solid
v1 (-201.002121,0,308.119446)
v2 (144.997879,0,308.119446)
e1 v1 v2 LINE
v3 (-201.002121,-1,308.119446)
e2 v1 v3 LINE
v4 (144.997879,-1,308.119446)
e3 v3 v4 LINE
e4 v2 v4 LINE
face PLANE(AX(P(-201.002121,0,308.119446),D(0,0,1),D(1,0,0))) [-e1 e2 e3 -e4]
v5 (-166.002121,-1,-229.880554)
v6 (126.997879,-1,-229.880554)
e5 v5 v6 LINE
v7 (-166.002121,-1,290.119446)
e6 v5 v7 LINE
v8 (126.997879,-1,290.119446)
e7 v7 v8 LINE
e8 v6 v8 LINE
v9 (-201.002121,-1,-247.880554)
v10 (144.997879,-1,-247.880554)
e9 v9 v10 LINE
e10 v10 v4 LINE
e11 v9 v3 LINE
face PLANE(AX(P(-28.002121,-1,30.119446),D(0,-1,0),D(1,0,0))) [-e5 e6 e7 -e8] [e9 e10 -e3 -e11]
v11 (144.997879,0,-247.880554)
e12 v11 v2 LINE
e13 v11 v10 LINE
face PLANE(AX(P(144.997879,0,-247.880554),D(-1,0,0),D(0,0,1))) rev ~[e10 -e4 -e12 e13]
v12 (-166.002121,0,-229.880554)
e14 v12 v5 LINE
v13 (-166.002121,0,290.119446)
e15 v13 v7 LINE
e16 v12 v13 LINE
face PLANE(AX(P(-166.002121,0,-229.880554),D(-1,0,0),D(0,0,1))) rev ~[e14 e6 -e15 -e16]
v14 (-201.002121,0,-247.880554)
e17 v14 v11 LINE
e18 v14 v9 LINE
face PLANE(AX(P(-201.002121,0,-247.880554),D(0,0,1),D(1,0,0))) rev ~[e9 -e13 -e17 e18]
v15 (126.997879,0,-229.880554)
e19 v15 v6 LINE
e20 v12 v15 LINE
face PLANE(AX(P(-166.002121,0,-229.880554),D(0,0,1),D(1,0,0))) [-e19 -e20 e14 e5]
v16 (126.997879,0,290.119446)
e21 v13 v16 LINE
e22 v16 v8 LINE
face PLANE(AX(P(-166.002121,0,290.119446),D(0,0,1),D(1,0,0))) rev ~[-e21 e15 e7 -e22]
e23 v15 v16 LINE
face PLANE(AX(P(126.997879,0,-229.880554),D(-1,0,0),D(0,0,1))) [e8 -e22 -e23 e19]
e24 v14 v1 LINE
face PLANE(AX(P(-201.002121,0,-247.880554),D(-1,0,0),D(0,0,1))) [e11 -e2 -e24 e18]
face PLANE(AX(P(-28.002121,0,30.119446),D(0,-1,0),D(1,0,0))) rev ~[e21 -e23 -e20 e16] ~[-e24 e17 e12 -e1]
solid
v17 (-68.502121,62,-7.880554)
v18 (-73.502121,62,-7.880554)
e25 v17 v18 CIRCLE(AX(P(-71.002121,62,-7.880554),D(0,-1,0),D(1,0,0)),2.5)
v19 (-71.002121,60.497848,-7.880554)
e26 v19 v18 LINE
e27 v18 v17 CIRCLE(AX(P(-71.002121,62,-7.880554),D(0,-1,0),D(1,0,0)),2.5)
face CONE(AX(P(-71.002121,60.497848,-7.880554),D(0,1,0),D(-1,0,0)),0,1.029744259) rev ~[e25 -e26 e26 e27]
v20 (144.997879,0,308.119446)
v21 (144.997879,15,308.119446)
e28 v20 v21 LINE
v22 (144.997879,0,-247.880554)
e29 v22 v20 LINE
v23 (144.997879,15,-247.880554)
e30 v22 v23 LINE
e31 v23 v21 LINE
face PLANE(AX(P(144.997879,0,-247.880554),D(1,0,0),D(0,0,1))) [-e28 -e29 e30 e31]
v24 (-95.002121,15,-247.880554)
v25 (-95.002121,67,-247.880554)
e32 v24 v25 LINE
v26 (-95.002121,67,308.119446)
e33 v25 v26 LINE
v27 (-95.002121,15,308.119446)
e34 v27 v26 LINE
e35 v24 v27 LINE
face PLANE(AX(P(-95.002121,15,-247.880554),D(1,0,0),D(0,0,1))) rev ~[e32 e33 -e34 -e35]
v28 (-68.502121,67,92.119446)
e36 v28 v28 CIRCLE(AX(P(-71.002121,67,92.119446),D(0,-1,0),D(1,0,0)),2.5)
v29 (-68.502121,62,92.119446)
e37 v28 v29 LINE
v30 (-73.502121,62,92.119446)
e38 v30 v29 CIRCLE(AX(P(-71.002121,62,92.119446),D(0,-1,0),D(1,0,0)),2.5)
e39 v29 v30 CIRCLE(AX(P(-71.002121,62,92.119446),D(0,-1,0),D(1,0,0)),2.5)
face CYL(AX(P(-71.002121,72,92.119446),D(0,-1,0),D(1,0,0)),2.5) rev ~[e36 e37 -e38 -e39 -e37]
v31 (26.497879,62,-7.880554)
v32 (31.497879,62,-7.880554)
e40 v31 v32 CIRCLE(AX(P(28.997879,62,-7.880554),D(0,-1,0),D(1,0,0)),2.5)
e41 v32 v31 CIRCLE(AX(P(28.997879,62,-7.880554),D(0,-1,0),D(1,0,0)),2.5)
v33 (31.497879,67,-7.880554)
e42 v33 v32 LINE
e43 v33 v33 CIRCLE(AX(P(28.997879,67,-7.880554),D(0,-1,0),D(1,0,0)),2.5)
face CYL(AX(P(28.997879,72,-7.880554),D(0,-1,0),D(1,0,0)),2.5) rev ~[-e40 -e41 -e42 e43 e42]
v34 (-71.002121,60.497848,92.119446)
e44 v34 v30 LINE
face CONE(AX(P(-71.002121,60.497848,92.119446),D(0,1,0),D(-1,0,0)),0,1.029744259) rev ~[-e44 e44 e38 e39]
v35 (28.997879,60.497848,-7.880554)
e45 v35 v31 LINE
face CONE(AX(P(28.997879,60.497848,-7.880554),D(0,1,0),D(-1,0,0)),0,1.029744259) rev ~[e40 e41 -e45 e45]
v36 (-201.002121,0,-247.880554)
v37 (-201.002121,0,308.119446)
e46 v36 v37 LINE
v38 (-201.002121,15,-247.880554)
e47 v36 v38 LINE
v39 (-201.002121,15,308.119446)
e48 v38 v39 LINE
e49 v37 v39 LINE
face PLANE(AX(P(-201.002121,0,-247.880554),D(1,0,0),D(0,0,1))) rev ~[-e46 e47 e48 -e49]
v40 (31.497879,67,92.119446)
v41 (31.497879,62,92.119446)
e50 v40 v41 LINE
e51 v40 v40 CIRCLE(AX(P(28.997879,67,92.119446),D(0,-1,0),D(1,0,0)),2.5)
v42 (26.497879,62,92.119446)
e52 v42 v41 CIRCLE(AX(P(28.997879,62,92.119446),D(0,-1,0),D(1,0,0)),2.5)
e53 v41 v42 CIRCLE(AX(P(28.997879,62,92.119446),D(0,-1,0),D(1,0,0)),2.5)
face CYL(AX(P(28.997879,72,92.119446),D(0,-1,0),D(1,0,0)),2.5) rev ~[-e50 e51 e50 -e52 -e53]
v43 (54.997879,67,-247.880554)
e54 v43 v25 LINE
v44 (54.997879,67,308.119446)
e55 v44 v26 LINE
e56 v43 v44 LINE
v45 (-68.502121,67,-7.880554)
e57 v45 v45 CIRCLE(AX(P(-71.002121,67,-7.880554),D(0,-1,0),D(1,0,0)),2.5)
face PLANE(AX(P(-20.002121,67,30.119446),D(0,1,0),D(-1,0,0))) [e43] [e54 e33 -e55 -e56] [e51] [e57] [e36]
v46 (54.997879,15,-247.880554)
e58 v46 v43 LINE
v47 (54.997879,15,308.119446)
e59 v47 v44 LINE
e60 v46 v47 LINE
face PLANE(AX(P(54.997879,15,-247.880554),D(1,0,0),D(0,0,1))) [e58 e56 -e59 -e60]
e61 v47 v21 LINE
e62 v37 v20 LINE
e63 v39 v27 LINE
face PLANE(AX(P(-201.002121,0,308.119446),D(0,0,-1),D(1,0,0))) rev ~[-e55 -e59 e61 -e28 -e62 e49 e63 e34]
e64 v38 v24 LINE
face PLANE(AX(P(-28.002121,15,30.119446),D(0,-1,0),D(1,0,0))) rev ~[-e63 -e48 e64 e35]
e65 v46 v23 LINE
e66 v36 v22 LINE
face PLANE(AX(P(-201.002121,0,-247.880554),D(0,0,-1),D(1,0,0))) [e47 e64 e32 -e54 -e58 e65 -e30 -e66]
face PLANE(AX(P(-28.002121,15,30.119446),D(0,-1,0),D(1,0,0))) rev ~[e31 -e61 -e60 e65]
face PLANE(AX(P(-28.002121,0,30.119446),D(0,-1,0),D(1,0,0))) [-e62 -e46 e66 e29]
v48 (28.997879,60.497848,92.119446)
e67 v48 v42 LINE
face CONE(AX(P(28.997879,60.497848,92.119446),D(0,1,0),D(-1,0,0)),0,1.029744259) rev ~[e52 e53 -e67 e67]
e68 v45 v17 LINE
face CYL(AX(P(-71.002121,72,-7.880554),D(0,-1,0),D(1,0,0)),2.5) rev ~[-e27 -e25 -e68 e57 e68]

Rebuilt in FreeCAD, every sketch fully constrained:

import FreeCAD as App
import Part
import Sketcher

V = App.Vector
Q = App.Units.Quantity

doc = App.newDocument("Part")
body = doc.addObject("PartDesign::Body", "Body")

# Sketch on XZ plane
sketch1 = doc.addObject("Sketcher::SketchObject", "Sketch")
body.addObject(sketch1)
sketch1.AttachmentSupport = (doc.XZ_Plane, [""])
sketch1.MapMode = "FlatFace"
sketch1.addGeometry([
    Part.LineSegment(V(-201.002121, 308.119446, 0), V(-201.002121, -247.880554, 0)),
    Part.LineSegment(V(-201.002121, -247.880554, 0), V(144.997879, -247.880554, 0)),
    Part.LineSegment(V(144.997879, -247.880554, 0), V(144.997879, 308.119446, 0)),
    Part.LineSegment(V(144.997879, 308.119446, 0), V(-201.002121, 308.119446, 0)),
], False)
sketch1.addConstraint([
    Sketcher.Constraint("Coincident", 0, 2, 1, 1),
    Sketcher.Constraint("Coincident", 1, 2, 2, 1),
    Sketcher.Constraint("Coincident", 2, 2, 3, 1),
    Sketcher.Constraint("Coincident", 3, 2, 0, 1),
    Sketcher.Constraint("Vertical", 0),
    Sketcher.Constraint("Horizontal", 1),
    Sketcher.Constraint("Vertical", 2),
    Sketcher.Constraint("Horizontal", 3),
    Sketcher.Constraint("DistanceX", 1, 1, 1, 2, Q("346 mm")),
    Sketcher.Constraint("DistanceY", 0, 2, 0, 1, Q("556 mm")),
    Sketcher.Constraint("DistanceX", 0, 2, -1, 1, Q("201.002121 mm")),
    Sketcher.Constraint("DistanceY", 0, 2, -1, 1, Q("247.880554 mm")),
])
pad1 = doc.addObject("PartDesign::Pad", "Pad")
body.addObject(pad1)
pad1.Profile = sketch1
pad1.Length = 15
pad1.Reversed = True

# Sketch on XZ plane
sketch2 = doc.addObject("Sketcher::SketchObject", "Sketch001")
body.addObject(sketch2)
sketch2.AttachmentSupport = (doc.XZ_Plane, [""])
sketch2.MapMode = "FlatFace"
sketch2.AttachmentOffset = App.Placement(V(0, 0, -15), App.Rotation())
sketch2.addGeometry([
    Part.LineSegment(V(54.997879, 308.119446, 0), V(54.997879, -247.880554, 0)),
    Part.LineSegment(V(54.997879, -247.880554, 0), V(-95.002121, -247.880554, 0)),
    Part.LineSegment(V(-95.002121, -247.880554, 0), V(-95.002121, 308.119446, 0)),
    Part.LineSegment(V(-95.002121, 308.119446, 0), V(54.997879, 308.119446, 0)),
], False)
sketch2.addConstraint([
    Sketcher.Constraint("Coincident", 0, 2, 1, 1),
    Sketcher.Constraint("Coincident", 1, 2, 2, 1),
    Sketcher.Constraint("Coincident", 2, 2, 3, 1),
    Sketcher.Constraint("Coincident", 3, 2, 0, 1),
    Sketcher.Constraint("Vertical", 0),
    Sketcher.Constraint("Horizontal", 1),
    Sketcher.Constraint("Vertical", 2),
    Sketcher.Constraint("Horizontal", 3),
    Sketcher.Constraint("DistanceX", 1, 2, 1, 1, Q("150 mm")),
    Sketcher.Constraint("DistanceY", 0, 2, 0, 1, Q("556 mm")),
    Sketcher.Constraint("DistanceX", -1, 1, 0, 2, Q("54.997879 mm")),
    Sketcher.Constraint("DistanceY", 0, 2, -1, 1, Q("247.880554 mm")),
])
pad2 = doc.addObject("PartDesign::Pad", "Pad001")
body.addObject(pad2)
pad2.Profile = sketch2
pad2.Length = 52
pad2.Reversed = True

# Sketch on XZ plane
sketch3 = doc.addObject("Sketcher::SketchObject", "Sketch002")
body.addObject(sketch3)
sketch3.AttachmentSupport = (doc.XZ_Plane, [""])
sketch3.MapMode = "FlatFace"
sketch3.AttachmentOffset = App.Placement(V(0, 0, -67), App.Rotation())
sketch3.addGeometry([
    Part.Circle(V(28.997879, 92.119446, 0), V(0, 0, 1), 2.5),
    Part.Circle(V(-71.002121, 92.119446, 0), V(0, 0, 1), 2.5),
    Part.Circle(V(-71.002121, -7.880554, 0), V(0, 0, 1), 2.5),
    Part.Circle(V(28.997879, -7.880554, 0), V(0, 0, 1), 2.5),
], False)
sketch3.addConstraint([
    Sketcher.Constraint("Equal", 0, 1),
    Sketcher.Constraint("Equal", 1, 2),
    Sketcher.Constraint("Equal", 2, 3),
    Sketcher.Constraint("Horizontal", 0, 3, 1, 3),
    Sketcher.Constraint("Horizontal", 2, 3, 3, 3),
    Sketcher.Constraint("Vertical", 1, 3, 2, 3),
    Sketcher.Constraint("Vertical", 0, 3, 3, 3),
    Sketcher.Constraint("Diameter", 0, Q("5 mm")),
    Sketcher.Constraint("DistanceX", 1, 3, 0, 3, Q("100 mm")),
    Sketcher.Constraint("DistanceY", 2, 3, 1, 3, Q("100 mm")),
    Sketcher.Constraint("DistanceX", -1, 1, 0, 3, Q("28.997879 mm")),
    Sketcher.Constraint("DistanceY", -1, 1, 0, 3, Q("92.119446 mm")),
])
doc.recompute()
hole = doc.addObject("PartDesign::Hole", "Hole")
body.addObject(hole)
hole.Profile = sketch3
hole.ThreadType = "None"
hole.Diameter = 5
hole.DepthType = "Dimension"
hole.Depth = 5
hole.DrillPoint = "Angled"
hole.DrillPointAngle = 118
hole.Reversed = True
body2 = doc.addObject("PartDesign::Body", "Body001")

# Sketch on XZ plane
sketch4 = doc.addObject("Sketcher::SketchObject", "Sketch003")
body2.addObject(sketch4)
sketch4.AttachmentSupport = (doc.getObject("XZ_Plane001"), [""])
sketch4.MapMode = "FlatFace"
sketch4.addGeometry([
    Part.LineSegment(V(-201.002121, 308.119446, 0), V(-201.002121, -247.880554, 0)),  # 0
    Part.LineSegment(V(-201.002121, -247.880554, 0), V(144.997879, -247.880554, 0)),  # 1
    Part.LineSegment(V(144.997879, -247.880554, 0), V(144.997879, 308.119446, 0)),  # 2
    Part.LineSegment(V(144.997879, 308.119446, 0), V(-201.002121, 308.119446, 0)),  # 3
    Part.LineSegment(V(126.997879, -229.880554, 0), V(-166.002121, -229.880554, 0)),  # 4
    Part.LineSegment(V(-166.002121, -229.880554, 0), V(-166.002121, 290.119446, 0)),  # 5
    Part.LineSegment(V(-166.002121, 290.119446, 0), V(126.997879, 290.119446, 0)),  # 6
    Part.LineSegment(V(126.997879, 290.119446, 0), V(126.997879, -229.880554, 0)),  # 7
], False)
sketch4.addConstraint([
    Sketcher.Constraint("Coincident", 0, 2, 1, 1),
    Sketcher.Constraint("Coincident", 1, 2, 2, 1),
    Sketcher.Constraint("Coincident", 2, 2, 3, 1),
    Sketcher.Constraint("Coincident", 3, 2, 0, 1),
    Sketcher.Constraint("Coincident", 4, 2, 5, 1),
    Sketcher.Constraint("Coincident", 5, 2, 6, 1),
    Sketcher.Constraint("Coincident", 6, 2, 7, 1),
    Sketcher.Constraint("Coincident", 7, 2, 4, 1),
    Sketcher.Constraint("Vertical", 0),
    Sketcher.Constraint("Horizontal", 1),
    Sketcher.Constraint("Vertical", 2),
    Sketcher.Constraint("Horizontal", 3),
    Sketcher.Constraint("Horizontal", 4),
    Sketcher.Constraint("Vertical", 5),
    Sketcher.Constraint("Horizontal", 6),
    Sketcher.Constraint("Vertical", 7),
    Sketcher.Constraint("DistanceX", 1, 1, 1, 2, Q("346 mm")),
    Sketcher.Constraint("DistanceX", 4, 2, 4, 1, Q("293 mm")),
    Sketcher.Constraint("DistanceY", 0, 2, 0, 1, Q("556 mm")),
    Sketcher.Constraint("DistanceY", 5, 1, 5, 2, Q("520 mm")),
    Sketcher.Constraint("DistanceX", 0, 2, 4, 2, Q("35 mm")),
    Sketcher.Constraint("DistanceY", 0, 2, 4, 2, Q("18 mm")),
    Sketcher.Constraint("DistanceX", 0, 2, -1, 1, Q("201.002121 mm")),
    Sketcher.Constraint("DistanceY", 0, 2, -1, 1, Q("247.880554 mm")),
])
pad3 = doc.addObject("PartDesign::Pad", "Pad002")
body2.addObject(pad3)
pad3.Profile = sketch4
pad3.Length = 1

doc.recompute()
